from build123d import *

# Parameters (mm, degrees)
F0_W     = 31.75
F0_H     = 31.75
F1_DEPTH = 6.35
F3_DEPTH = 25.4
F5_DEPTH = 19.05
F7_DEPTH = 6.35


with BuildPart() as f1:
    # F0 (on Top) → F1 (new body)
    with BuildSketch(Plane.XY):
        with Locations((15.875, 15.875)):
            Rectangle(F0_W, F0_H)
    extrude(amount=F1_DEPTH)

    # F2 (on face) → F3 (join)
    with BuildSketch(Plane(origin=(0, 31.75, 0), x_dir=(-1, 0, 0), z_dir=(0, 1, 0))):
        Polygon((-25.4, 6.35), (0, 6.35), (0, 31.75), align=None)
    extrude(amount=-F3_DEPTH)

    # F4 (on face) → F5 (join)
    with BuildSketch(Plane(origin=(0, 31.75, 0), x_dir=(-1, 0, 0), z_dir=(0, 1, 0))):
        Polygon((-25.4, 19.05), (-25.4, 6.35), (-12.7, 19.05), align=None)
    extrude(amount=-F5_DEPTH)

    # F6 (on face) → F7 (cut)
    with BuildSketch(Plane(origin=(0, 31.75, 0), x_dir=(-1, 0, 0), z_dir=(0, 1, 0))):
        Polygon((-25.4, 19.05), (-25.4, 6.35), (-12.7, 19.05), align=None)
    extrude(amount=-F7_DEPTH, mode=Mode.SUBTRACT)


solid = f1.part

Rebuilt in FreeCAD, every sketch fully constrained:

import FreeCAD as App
import Part
import Sketcher
Q = App.Units.Quantity


def add_polygon(sketch, points):
    """Adds a closed chain of lines whose ends are joined by coincident constraints."""
    first, n = sketch.GeometryCount, len(points)
    for a, b in zip(points, points[1:] + points[:1]):
        sketch.addGeometry(Part.LineSegment(App.Vector(*a, 0), App.Vector(*b, 0)), False)
    for i in range(n):
        sketch.addConstraint(Sketcher.Constraint("Coincident", first + i, 2, first + (i + 1) % n, 1))

doc = App.newDocument("Part")
params = doc.addObject("Spreadsheet::Sheet", "Params")
for row, (alias, value) in enumerate([
    ("sketch1_width", "1.25 in"),
    ("pad1_length", "0.25 in"),
    ("sketch2_width", "1 in"),
    ("pad2_length", "1 in"),
    ("sketch3_width", "0.5 in"),
    ("pad3_length", "0.75 in"),
    ("sketch4_width", "0.5 in"),
    ("pocket1_length", "0.25 in"),
], start=1):
    params.set(f"A{row}", alias)
    params.set(f"B{row}", "=" + value)
    params.setAlias(f"B{row}", alias)

body = doc.addObject("PartDesign::Body", "Body")

# Sketch on XY plane
sketch1 = body.newObject("Sketcher::SketchObject", "Sketch")
sketch1.AttachmentSupport = (doc.getObject("XY_Plane"), [""])
sketch1.MapMode = "FlatFace"
add_polygon(sketch1, [(0, 31.75), (0, 0), (31.75, 0), (31.75, 31.75)])  # lines 0-3
sketch1.addConstraint([
    Sketcher.Constraint("Vertical", 0),
    Sketcher.Constraint("Horizontal", 1),
    Sketcher.Constraint("Vertical", 2),
    Sketcher.Constraint("Horizontal", 3),
    Sketcher.Constraint("Coincident", 0, 2, -1, 1),
    Sketcher.Constraint("Equal", 3, 0),
    Sketcher.Constraint("DistanceX", 1, 1, 1, 2, Q("1.25 in")),
])
sketch1.setExpression("Constraints[10]", "Params.sketch1_width")
pad1 = body.newObject("PartDesign::Pad", "Pad")
pad1.Profile = sketch1
pad1.setExpression("Length", "Params.pad1_length")

# Sketch on XZ plane
sketch2 = body.newObject("Sketcher::SketchObject", "Sketch001")
sketch2.AttachmentSupport = (doc.getObject("XZ_Plane"), [""])
sketch2.MapMode = "FlatFace"
sketch2.AttachmentOffset = App.Placement(App.Vector(0, 0, -1.25 * 25.4), App.Rotation())
add_polygon(sketch2, [(25.4, 6.35), (0, 6.35), (0, 31.75)])  # lines 0-2
sketch2.addConstraint([
    Sketcher.Constraint("Horizontal", 0),
    Sketcher.Constraint("Vertical", 1),
    Sketcher.Constraint("PointOnObject", 0, 2, -2),
    Sketcher.Constraint("Equal", 0, 1),
    Sketcher.Constraint("DistanceX", 0, 2, 0, 1, Q("1 in")),
    Sketcher.Constraint("DistanceY", -1, 1, 0, 2, Q("0.25 in")),
])
sketch2.setExpression("Constraints[7]", "Params.sketch2_width")
pad2 = body.newObject("PartDesign::Pad", "Pad001")
pad2.Profile = sketch2
pad2.setExpression("Length", "Params.pad2_length")

# Sketch on XZ plane
sketch3 = body.newObject("Sketcher::SketchObject", "Sketch002")
sketch3.AttachmentSupport = (doc.getObject("XZ_Plane"), [""])
sketch3.MapMode = "FlatFace"
sketch3.AttachmentOffset = App.Placement(App.Vector(0, 0, -1.25 * 25.4), App.Rotation())
add_polygon(sketch3, [(25.4, 19.05), (25.4, 6.35), (12.7, 19.05)])  # lines 0-2
sketch3.addConstraint([
    Sketcher.Constraint("Vertical", 0),
    Sketcher.Constraint("Horizontal", 2),
    Sketcher.Constraint("Equal", 2, 0),
    Sketcher.Constraint("DistanceX", 2, 1, 2, 2, Q("0.5 in")),
    Sketcher.Constraint("DistanceX", -1, 1, 0, 2, Q("1 in")),
    Sketcher.Constraint("DistanceY", -1, 1, 0, 2, Q("0.25 in")),
])
sketch3.setExpression("Constraints[6]", "Params.sketch3_width")
pad3 = body.newObject("PartDesign::Pad", "Pad002")
pad3.Profile = sketch3
pad3.setExpression("Length", "Params.pad3_length")

# Sketch on XZ plane
sketch4 = body.newObject("Sketcher::SketchObject", "Sketch003")
sketch4.AttachmentSupport = (doc.getObject("XZ_Plane"), [""])
sketch4.MapMode = "FlatFace"
sketch4.AttachmentOffset = App.Placement(App.Vector(0, 0, -1.25 * 25.4), App.Rotation())
add_polygon(sketch4, [(25.4, 19.05), (25.4, 6.35), (12.7, 19.05)])  # lines 0-2
sketch4.addConstraint([
    Sketcher.Constraint("Vertical", 0),
    Sketcher.Constraint("Horizontal", 2),
    Sketcher.Constraint("Equal", 2, 0),
    Sketcher.Constraint("DistanceX", 2, 1, 2, 2, Q("0.5 in")),
    Sketcher.Constraint("DistanceX", -1, 1, 0, 2, Q("1 in")),
    Sketcher.Constraint("DistanceY", -1, 1, 0, 2, Q("0.25 in")),
])
sketch4.setExpression("Constraints[6]", "Params.sketch4_width")
pocket1 = body.newObject("PartDesign::Pocket", "Pocket")
pocket1.Profile = sketch4
pocket1.setExpression("Length", "Params.pocket1_length")
pocket1.Reversed = True

doc.recompute()
